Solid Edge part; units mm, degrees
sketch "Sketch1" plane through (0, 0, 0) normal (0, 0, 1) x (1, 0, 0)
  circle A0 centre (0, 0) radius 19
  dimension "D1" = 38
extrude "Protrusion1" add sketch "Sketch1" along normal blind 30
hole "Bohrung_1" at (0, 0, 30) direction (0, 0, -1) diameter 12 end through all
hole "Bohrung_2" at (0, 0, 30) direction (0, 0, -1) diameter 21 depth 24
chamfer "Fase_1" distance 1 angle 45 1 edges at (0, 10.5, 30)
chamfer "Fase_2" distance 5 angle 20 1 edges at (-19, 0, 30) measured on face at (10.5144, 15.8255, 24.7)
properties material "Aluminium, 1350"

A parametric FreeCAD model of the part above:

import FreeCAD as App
import Part
import Sketcher
from FreeCAD import Vector


def edges_at(feature, points):
    """Names of the edges that pass closest to the given points."""
    edges = feature.Shape.Edges
    near = lambda p: min(range(len(edges)), key=lambda i: edges[i].distToShape(Part.Vertex(*p))[0])
    return sorted({f"Edge{near(p) + 1}" for p in points})

doc = App.newDocument("Part")
body = doc.addObject("PartDesign::Body", "Body")

# Sketch on XY plane
sketch1 = doc.addObject("Sketcher::SketchObject", "Sketch")
body.addObject(sketch1)
sketch1.AttachmentSupport = (doc.XY_Plane, [""])
sketch1.MapMode = "FlatFace"
sketch1.addGeometry(Part.Circle(Vector(0, 0, 0), Vector(0, 0, 1), 19), False)
sketch1.addConstraint(Sketcher.Constraint("Coincident", 0, 3, -1, 1))
sketch1.addConstraint(Sketcher.Constraint("Diameter", 0, 38.0))
pad1 = doc.addObject("PartDesign::Pad", "Pad")
body.addObject(pad1)
pad1.Profile = sketch1
pad1.Length = 30

# Sketch on XY plane
sketch2 = doc.addObject("Sketcher::SketchObject", "Sketch001")
body.addObject(sketch2)
sketch2.AttachmentSupport = (doc.XY_Plane, [""])
sketch2.MapMode = "FlatFace"
sketch2.AttachmentOffset = App.Placement(Vector(0, 0, 30), App.Rotation())
sketch2.addGeometry(Part.Circle(Vector(0, 0, 0), Vector(0, 0, 1), 6), False)
sketch2.addConstraint(Sketcher.Constraint("Coincident", 0, 3, -1, 1))
sketch2.addConstraint(Sketcher.Constraint("Diameter", 0, 12.0))
doc.recompute()
hole = doc.addObject("PartDesign::Hole", "Hole")
body.addObject(hole)
hole.Profile = sketch2
hole.ThreadType = "None"
hole.Diameter = 12
hole.DepthType = "ThroughAll"

# Sketch on XY plane
sketch3 = doc.addObject("Sketcher::SketchObject", "Sketch002")
body.addObject(sketch3)
sketch3.AttachmentSupport = (doc.XY_Plane, [""])
sketch3.MapMode = "FlatFace"
sketch3.AttachmentOffset = App.Placement(Vector(0, 0, 30), App.Rotation())
sketch3.addGeometry(Part.Circle(Vector(0, 0, 0), Vector(0, 0, 1), 10), False)
sketch3.addConstraint(Sketcher.Constraint("Coincident", 0, 3, -1, 1))
sketch3.addConstraint(Sketcher.Constraint("Diameter", 0, 21.0))
doc.recompute()
hole2 = doc.addObject("PartDesign::Hole", "Hole001")
body.addObject(hole2)
hole2.Profile = sketch3
hole2.ThreadType = "None"
hole2.Diameter = 21
hole2.DepthType = "Dimension"
hole2.Depth = 24
hole2.DrillPoint = "Flat"
doc.recompute()

chamfer = doc.addObject("PartDesign::Chamfer", "Chamfer")
body.addObject(chamfer)
chamfer.Base = (hole2, edges_at(hole2, [(0, 10.5, 30)]))
chamfer.Size = 1
doc.recompute()

chamfer2 = doc.addObject("PartDesign::Chamfer", "Chamfer001")
body.addObject(chamfer2)
chamfer2.Base = (chamfer, edges_at(chamfer, [(-19, 0, 30)]))
chamfer2.ChamferType = "Distance and Angle"
chamfer2.Size = 5
chamfer2.Angle = 20
chamfer2.FlipDirection = True

doc.recompute()
